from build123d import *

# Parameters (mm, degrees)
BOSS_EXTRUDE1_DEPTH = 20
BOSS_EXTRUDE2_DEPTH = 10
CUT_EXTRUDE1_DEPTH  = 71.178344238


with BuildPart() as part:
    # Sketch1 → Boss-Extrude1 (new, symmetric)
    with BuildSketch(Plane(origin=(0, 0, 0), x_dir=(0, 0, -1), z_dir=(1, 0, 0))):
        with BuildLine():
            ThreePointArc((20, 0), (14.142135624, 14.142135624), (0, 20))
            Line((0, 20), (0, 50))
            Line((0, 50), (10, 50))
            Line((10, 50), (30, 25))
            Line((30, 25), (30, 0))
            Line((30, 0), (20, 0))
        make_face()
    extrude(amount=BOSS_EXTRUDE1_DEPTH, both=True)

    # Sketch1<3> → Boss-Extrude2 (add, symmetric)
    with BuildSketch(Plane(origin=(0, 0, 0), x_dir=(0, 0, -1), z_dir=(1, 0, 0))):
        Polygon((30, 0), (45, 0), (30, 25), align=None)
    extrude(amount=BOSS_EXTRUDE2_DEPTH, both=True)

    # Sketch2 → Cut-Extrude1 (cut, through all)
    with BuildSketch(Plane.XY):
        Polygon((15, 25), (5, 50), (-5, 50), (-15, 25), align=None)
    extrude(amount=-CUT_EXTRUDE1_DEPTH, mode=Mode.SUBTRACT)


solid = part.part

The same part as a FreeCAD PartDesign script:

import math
import FreeCAD as App
import Part
import Sketcher


def add_polygon(sketch, points):
    """Adds a closed chain of lines whose ends are joined by coincident constraints."""
    first, n = sketch.GeometryCount, len(points)
    for a, b in zip(points, points[1:] + points[:1]):
        sketch.addGeometry(Part.LineSegment(App.Vector(*a, 0), App.Vector(*b, 0)), False)
    for i in range(n):
        sketch.addConstraint(Sketcher.Constraint("Coincident", first + i, 2, first + (i + 1) % n, 1))

doc = App.newDocument("Part")
body = doc.addObject("PartDesign::Body", "Body")

# Sketch on YZ plane
sketch1 = body.newObject("Sketcher::SketchObject", "Sketch")
sketch1.AttachmentSupport = (doc.getObject("YZ_Plane"), [""])
sketch1.MapMode = "FlatFace"
sketch1.addGeometry(Part.ArcOfCircle(Part.Circle(App.Vector(0, 0, 0), App.Vector(0, 0, 1), 20), math.radians(-90), math.radians(0)), False)
sketch1.addGeometry(Part.LineSegment(App.Vector(0, -20, 0), App.Vector(0, -30, 0)), False)
sketch1.addGeometry(Part.LineSegment(App.Vector(0, -30, 0), App.Vector(25, -30, 0)), False)
sketch1.addGeometry(Part.LineSegment(App.Vector(25, -30, 0), App.Vector(50, -10, 0)), False)
sketch1.addGeometry(Part.LineSegment(App.Vector(50, -10, 0), App.Vector(50, 0, 0)), False)
sketch1.addGeometry(Part.LineSegment(App.Vector(50, 0, 0), App.Vector(20, 0, 0)), False)
sketch1.addConstraint(Sketcher.Constraint("Coincident", 0, 1, 1, 1))
sketch1.addConstraint(Sketcher.Constraint("Coincident", 1, 2, 2, 1))
sketch1.addConstraint(Sketcher.Constraint("Coincident", 2, 2, 3, 1))
sketch1.addConstraint(Sketcher.Constraint("Coincident", 3, 2, 4, 1))
sketch1.addConstraint(Sketcher.Constraint("Coincident", 4, 2, 5, 1))
sketch1.addConstraint(Sketcher.Constraint("Coincident", 5, 2, 0, 2))
sketch1.addConstraint(Sketcher.Constraint("Vertical", 1))
sketch1.addConstraint(Sketcher.Constraint("Horizontal", 2))
sketch1.addConstraint(Sketcher.Constraint("Vertical", 4))
sketch1.addConstraint(Sketcher.Constraint("Horizontal", 5))
sketch1.addConstraint(Sketcher.Constraint("Coincident", 0, 3, -1, 1))
sketch1.addConstraint(Sketcher.Constraint("PointOnObject", 0, 1, -2))
sketch1.addConstraint(Sketcher.Constraint("PointOnObject", 4, 2, -1))
sketch1.addConstraint(Sketcher.Constraint("Equal", 1, 4))
sketch1.addConstraint(Sketcher.Constraint("Radius", 0, 20.0))
sketch1.addConstraint(Sketcher.Constraint("DistanceX", 2, 1, 2, 2, 25.0))
sketch1.addConstraint(Sketcher.Constraint("DistanceX", 5, 2, 5, 1, 30.0))
sketch1.addConstraint(Sketcher.Constraint("DistanceY", 1, 2, 1, 1, 10.0))
pad1 = body.newObject("PartDesign::Pad", "Pad")
pad1.Profile = sketch1
pad1.Length = 40
pad1.Midplane = True

# Sketch on YZ plane
sketch2 = body.newObject("Sketcher::SketchObject", "Sketch001")
sketch2.AttachmentSupport = (doc.getObject("YZ_Plane"), [""])
sketch2.MapMode = "FlatFace"
add_polygon(sketch2, [(0, -30), (0, -45), (25, -30)])  # lines 0-2
sketch2.addConstraint(Sketcher.Constraint("Vertical", 0))
sketch2.addConstraint(Sketcher.Constraint("Horizontal", 2))
sketch2.addConstraint(Sketcher.Constraint("PointOnObject", 0, 2, -2))
sketch2.addConstraint(Sketcher.Constraint("DistanceX", 2, 2, 2, 1, 25.0))
sketch2.addConstraint(Sketcher.Constraint("DistanceY", 0, 2, 0, 1, 15.0))
sketch2.addConstraint(Sketcher.Constraint("DistanceY", 0, 2, -1, 1, 45.0))
pad2 = body.newObject("PartDesign::Pad", "Pad001")
pad2.Profile = sketch2
pad2.Length = 20
pad2.Midplane = True

# Sketch on XY plane
sketch3 = body.newObject("Sketcher::SketchObject", "Sketch002")
sketch3.AttachmentSupport = (doc.getObject("XY_Plane"), [""])
sketch3.MapMode = "FlatFace"
add_polygon(sketch3, [(15, 25), (5, 50), (-5, 50), (-15, 25)])  # lines 0-3
sketch3.addConstraint(Sketcher.Constraint("Horizontal", 1))
sketch3.addConstraint(Sketcher.Constraint("Horizontal", 3))
sketch3.addConstraint(Sketcher.Constraint("Equal", 0, 2))
sketch3.addConstraint(Sketcher.Constraint("DistanceX", 1, 2, 1, 1, 10.0))
sketch3.addConstraint(Sketcher.Constraint("DistanceX", 3, 1, 3, 2, 30.0))
sketch3.addConstraint(Sketcher.Constraint("DistanceX", -1, 1, 0, 2, 5.0))
sketch3.addConstraint(Sketcher.Constraint("DistanceY", -1, 1, 0, 2, 50.0))
sketch3.addConstraint(Sketcher.Constraint("DistanceY", -1, 1, 2, 2, 25.0))
pocket1 = body.newObject("PartDesign::Pocket", "Pocket")
pocket1.Profile = sketch3
pocket1.Type = "ThroughAll"

doc.recompute()
